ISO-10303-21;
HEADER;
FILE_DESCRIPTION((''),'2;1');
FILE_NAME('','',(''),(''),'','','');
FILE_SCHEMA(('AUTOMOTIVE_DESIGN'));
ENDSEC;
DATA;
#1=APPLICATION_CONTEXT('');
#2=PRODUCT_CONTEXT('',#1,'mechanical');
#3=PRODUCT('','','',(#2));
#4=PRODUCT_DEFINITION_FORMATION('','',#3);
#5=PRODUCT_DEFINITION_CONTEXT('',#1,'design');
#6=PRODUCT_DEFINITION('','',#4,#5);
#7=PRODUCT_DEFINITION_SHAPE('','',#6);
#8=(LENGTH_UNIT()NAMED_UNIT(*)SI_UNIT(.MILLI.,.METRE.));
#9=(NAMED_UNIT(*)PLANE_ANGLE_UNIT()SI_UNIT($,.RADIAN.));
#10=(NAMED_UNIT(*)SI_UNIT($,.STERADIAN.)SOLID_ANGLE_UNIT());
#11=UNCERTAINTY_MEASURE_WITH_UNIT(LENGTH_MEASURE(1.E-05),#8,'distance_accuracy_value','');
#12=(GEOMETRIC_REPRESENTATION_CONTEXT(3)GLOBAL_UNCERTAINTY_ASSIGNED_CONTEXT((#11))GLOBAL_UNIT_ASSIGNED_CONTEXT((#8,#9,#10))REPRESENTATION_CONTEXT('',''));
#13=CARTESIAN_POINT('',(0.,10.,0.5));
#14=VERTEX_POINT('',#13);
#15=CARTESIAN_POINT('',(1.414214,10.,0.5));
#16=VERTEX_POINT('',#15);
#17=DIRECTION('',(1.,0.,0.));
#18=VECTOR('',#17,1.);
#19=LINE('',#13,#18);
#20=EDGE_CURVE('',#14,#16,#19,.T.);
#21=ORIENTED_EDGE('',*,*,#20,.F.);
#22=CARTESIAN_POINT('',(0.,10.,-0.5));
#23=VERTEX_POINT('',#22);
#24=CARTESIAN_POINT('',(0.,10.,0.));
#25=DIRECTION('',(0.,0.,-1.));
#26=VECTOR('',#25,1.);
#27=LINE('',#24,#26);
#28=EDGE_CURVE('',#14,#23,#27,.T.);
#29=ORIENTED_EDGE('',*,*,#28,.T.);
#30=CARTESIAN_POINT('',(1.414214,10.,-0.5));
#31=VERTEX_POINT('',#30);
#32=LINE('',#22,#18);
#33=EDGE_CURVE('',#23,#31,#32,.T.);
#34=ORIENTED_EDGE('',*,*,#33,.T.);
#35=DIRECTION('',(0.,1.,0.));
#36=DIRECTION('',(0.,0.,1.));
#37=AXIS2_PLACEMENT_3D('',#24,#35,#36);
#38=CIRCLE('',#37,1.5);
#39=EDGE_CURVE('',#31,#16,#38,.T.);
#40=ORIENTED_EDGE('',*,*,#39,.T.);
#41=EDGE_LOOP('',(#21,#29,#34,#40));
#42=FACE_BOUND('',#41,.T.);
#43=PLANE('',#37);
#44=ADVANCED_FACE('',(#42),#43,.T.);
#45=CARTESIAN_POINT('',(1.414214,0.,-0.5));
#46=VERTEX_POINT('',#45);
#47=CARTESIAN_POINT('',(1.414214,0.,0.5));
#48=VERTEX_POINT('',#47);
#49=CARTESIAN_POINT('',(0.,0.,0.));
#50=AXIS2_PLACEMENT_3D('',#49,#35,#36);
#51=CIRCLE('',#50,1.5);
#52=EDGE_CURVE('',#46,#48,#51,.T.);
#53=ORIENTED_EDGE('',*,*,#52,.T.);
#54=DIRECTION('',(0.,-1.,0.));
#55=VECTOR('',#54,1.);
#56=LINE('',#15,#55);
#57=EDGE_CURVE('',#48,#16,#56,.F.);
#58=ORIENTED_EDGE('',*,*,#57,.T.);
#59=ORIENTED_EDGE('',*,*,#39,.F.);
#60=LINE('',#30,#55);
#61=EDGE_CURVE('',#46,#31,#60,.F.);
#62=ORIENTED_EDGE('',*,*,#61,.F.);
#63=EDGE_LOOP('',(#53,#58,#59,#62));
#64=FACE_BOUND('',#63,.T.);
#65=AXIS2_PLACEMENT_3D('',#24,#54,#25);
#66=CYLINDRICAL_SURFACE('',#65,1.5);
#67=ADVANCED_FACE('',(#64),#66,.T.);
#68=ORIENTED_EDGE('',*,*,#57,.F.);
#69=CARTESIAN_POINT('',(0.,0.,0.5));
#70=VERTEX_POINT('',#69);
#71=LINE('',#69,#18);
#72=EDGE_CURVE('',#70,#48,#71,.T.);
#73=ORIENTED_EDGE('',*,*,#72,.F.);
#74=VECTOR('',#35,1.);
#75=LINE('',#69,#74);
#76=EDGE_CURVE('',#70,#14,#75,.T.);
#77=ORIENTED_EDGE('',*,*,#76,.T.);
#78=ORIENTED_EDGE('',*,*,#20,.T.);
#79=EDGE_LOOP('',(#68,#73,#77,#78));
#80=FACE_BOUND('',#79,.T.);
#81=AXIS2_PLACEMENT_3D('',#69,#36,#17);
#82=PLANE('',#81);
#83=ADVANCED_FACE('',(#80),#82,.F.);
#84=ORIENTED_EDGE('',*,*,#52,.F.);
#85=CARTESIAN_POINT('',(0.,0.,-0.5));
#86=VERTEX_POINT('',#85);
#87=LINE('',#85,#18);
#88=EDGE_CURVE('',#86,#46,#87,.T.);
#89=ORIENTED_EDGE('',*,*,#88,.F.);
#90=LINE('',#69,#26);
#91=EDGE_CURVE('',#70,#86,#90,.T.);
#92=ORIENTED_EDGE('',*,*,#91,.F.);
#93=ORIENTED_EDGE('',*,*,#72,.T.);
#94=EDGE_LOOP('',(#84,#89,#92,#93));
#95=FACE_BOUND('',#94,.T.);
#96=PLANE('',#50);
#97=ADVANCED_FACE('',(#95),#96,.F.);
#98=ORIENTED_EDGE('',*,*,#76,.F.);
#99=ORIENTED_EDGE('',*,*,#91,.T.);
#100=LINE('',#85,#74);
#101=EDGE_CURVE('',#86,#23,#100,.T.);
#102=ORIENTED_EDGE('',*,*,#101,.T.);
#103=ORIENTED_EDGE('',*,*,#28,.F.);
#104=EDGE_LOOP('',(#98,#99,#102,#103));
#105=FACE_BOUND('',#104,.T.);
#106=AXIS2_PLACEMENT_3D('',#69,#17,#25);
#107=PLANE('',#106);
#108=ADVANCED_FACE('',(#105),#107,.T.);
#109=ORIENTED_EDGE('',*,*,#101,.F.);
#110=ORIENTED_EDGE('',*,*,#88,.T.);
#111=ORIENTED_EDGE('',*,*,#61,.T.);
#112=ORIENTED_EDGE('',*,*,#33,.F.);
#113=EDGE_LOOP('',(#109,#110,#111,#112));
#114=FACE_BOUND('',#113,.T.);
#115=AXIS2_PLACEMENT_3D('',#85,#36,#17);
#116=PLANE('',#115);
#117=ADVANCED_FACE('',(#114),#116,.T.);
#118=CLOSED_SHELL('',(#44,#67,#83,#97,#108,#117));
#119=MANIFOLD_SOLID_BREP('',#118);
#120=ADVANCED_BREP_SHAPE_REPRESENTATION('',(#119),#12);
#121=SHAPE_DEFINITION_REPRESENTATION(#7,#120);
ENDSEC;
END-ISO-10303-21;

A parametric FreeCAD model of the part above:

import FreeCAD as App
import Part
import Sketcher
from FreeCAD import Vector

doc = App.newDocument("Part")
body = doc.addObject("PartDesign::Body", "Body")

sketch1 = doc.addObject("Sketcher::SketchObject", "Sketch")
body.addObject(sketch1)
sketch1.AttachmentSupport = (doc.XZ_Plane, [""])
sketch1.MapMode = "FlatFace"
sketch1.addGeometry(Part.Circle(Vector(0, 0, 0), Vector(0, 0, 1), 1.5), False)
sketch1.addConstraint([
    Sketcher.Constraint("Coincident", 0, 3, -1, 1),
    Sketcher.Constraint("Diameter", 0, 3.0),
])
pad1 = doc.addObject("PartDesign::Pad", "Pad")
body.addObject(pad1)
pad1.Profile = sketch1
pad1.Length = 10
pad1.Reversed = True

sketch2 = doc.addObject("Sketcher::SketchObject", "Sketch001")
body.addObject(sketch2)
sketch2.AttachmentSupport = (doc.XZ_Plane, [""])
sketch2.MapMode = "FlatFace"
sketch2.AttachmentOffset = App.Placement(Vector(0, 0, -10), App.Rotation())
sketch2.addGeometry([
    Part.LineSegment(Vector(0, -0.5, 0), Vector(0, 0.5, 0)),
    Part.LineSegment(Vector(0, 0.5, 0), Vector(1.5, 0.5, 0)),
    Part.LineSegment(Vector(1.5, 0.5, 0), Vector(1.5, -0.5, 0)),
    Part.LineSegment(Vector(1.5, -0.5, 0), Vector(0, -0.5, 0)),
], False)
sketch2.addConstraint([
    Sketcher.Constraint("Coincident", 0, 2, 1, 1),
    Sketcher.Constraint("Coincident", 1, 2, 2, 1),
    Sketcher.Constraint("Coincident", 2, 2, 3, 1),
    Sketcher.Constraint("Coincident", 3, 2, 0, 1),
    Sketcher.Constraint("Vertical", 0),
    Sketcher.Constraint("Horizontal", 1),
    Sketcher.Constraint("Vertical", 2),
    Sketcher.Constraint("Horizontal", 3),
    Sketcher.Constraint("Symmetric", 0, 2, 3, 2, -1, 1),
    Sketcher.Constraint("DistanceY", 0, 1, 0, 2, 1.0),
    Sketcher.Constraint("DistanceX", 1, 1, 1, 2, 1.5),
])
pocket1 = doc.addObject("PartDesign::Pocket", "Pocket")
body.addObject(pocket1)
pocket1.Profile = sketch2
pocket1.Type = "ThroughAll"
pocket1.Midplane = True

doc.recompute()
